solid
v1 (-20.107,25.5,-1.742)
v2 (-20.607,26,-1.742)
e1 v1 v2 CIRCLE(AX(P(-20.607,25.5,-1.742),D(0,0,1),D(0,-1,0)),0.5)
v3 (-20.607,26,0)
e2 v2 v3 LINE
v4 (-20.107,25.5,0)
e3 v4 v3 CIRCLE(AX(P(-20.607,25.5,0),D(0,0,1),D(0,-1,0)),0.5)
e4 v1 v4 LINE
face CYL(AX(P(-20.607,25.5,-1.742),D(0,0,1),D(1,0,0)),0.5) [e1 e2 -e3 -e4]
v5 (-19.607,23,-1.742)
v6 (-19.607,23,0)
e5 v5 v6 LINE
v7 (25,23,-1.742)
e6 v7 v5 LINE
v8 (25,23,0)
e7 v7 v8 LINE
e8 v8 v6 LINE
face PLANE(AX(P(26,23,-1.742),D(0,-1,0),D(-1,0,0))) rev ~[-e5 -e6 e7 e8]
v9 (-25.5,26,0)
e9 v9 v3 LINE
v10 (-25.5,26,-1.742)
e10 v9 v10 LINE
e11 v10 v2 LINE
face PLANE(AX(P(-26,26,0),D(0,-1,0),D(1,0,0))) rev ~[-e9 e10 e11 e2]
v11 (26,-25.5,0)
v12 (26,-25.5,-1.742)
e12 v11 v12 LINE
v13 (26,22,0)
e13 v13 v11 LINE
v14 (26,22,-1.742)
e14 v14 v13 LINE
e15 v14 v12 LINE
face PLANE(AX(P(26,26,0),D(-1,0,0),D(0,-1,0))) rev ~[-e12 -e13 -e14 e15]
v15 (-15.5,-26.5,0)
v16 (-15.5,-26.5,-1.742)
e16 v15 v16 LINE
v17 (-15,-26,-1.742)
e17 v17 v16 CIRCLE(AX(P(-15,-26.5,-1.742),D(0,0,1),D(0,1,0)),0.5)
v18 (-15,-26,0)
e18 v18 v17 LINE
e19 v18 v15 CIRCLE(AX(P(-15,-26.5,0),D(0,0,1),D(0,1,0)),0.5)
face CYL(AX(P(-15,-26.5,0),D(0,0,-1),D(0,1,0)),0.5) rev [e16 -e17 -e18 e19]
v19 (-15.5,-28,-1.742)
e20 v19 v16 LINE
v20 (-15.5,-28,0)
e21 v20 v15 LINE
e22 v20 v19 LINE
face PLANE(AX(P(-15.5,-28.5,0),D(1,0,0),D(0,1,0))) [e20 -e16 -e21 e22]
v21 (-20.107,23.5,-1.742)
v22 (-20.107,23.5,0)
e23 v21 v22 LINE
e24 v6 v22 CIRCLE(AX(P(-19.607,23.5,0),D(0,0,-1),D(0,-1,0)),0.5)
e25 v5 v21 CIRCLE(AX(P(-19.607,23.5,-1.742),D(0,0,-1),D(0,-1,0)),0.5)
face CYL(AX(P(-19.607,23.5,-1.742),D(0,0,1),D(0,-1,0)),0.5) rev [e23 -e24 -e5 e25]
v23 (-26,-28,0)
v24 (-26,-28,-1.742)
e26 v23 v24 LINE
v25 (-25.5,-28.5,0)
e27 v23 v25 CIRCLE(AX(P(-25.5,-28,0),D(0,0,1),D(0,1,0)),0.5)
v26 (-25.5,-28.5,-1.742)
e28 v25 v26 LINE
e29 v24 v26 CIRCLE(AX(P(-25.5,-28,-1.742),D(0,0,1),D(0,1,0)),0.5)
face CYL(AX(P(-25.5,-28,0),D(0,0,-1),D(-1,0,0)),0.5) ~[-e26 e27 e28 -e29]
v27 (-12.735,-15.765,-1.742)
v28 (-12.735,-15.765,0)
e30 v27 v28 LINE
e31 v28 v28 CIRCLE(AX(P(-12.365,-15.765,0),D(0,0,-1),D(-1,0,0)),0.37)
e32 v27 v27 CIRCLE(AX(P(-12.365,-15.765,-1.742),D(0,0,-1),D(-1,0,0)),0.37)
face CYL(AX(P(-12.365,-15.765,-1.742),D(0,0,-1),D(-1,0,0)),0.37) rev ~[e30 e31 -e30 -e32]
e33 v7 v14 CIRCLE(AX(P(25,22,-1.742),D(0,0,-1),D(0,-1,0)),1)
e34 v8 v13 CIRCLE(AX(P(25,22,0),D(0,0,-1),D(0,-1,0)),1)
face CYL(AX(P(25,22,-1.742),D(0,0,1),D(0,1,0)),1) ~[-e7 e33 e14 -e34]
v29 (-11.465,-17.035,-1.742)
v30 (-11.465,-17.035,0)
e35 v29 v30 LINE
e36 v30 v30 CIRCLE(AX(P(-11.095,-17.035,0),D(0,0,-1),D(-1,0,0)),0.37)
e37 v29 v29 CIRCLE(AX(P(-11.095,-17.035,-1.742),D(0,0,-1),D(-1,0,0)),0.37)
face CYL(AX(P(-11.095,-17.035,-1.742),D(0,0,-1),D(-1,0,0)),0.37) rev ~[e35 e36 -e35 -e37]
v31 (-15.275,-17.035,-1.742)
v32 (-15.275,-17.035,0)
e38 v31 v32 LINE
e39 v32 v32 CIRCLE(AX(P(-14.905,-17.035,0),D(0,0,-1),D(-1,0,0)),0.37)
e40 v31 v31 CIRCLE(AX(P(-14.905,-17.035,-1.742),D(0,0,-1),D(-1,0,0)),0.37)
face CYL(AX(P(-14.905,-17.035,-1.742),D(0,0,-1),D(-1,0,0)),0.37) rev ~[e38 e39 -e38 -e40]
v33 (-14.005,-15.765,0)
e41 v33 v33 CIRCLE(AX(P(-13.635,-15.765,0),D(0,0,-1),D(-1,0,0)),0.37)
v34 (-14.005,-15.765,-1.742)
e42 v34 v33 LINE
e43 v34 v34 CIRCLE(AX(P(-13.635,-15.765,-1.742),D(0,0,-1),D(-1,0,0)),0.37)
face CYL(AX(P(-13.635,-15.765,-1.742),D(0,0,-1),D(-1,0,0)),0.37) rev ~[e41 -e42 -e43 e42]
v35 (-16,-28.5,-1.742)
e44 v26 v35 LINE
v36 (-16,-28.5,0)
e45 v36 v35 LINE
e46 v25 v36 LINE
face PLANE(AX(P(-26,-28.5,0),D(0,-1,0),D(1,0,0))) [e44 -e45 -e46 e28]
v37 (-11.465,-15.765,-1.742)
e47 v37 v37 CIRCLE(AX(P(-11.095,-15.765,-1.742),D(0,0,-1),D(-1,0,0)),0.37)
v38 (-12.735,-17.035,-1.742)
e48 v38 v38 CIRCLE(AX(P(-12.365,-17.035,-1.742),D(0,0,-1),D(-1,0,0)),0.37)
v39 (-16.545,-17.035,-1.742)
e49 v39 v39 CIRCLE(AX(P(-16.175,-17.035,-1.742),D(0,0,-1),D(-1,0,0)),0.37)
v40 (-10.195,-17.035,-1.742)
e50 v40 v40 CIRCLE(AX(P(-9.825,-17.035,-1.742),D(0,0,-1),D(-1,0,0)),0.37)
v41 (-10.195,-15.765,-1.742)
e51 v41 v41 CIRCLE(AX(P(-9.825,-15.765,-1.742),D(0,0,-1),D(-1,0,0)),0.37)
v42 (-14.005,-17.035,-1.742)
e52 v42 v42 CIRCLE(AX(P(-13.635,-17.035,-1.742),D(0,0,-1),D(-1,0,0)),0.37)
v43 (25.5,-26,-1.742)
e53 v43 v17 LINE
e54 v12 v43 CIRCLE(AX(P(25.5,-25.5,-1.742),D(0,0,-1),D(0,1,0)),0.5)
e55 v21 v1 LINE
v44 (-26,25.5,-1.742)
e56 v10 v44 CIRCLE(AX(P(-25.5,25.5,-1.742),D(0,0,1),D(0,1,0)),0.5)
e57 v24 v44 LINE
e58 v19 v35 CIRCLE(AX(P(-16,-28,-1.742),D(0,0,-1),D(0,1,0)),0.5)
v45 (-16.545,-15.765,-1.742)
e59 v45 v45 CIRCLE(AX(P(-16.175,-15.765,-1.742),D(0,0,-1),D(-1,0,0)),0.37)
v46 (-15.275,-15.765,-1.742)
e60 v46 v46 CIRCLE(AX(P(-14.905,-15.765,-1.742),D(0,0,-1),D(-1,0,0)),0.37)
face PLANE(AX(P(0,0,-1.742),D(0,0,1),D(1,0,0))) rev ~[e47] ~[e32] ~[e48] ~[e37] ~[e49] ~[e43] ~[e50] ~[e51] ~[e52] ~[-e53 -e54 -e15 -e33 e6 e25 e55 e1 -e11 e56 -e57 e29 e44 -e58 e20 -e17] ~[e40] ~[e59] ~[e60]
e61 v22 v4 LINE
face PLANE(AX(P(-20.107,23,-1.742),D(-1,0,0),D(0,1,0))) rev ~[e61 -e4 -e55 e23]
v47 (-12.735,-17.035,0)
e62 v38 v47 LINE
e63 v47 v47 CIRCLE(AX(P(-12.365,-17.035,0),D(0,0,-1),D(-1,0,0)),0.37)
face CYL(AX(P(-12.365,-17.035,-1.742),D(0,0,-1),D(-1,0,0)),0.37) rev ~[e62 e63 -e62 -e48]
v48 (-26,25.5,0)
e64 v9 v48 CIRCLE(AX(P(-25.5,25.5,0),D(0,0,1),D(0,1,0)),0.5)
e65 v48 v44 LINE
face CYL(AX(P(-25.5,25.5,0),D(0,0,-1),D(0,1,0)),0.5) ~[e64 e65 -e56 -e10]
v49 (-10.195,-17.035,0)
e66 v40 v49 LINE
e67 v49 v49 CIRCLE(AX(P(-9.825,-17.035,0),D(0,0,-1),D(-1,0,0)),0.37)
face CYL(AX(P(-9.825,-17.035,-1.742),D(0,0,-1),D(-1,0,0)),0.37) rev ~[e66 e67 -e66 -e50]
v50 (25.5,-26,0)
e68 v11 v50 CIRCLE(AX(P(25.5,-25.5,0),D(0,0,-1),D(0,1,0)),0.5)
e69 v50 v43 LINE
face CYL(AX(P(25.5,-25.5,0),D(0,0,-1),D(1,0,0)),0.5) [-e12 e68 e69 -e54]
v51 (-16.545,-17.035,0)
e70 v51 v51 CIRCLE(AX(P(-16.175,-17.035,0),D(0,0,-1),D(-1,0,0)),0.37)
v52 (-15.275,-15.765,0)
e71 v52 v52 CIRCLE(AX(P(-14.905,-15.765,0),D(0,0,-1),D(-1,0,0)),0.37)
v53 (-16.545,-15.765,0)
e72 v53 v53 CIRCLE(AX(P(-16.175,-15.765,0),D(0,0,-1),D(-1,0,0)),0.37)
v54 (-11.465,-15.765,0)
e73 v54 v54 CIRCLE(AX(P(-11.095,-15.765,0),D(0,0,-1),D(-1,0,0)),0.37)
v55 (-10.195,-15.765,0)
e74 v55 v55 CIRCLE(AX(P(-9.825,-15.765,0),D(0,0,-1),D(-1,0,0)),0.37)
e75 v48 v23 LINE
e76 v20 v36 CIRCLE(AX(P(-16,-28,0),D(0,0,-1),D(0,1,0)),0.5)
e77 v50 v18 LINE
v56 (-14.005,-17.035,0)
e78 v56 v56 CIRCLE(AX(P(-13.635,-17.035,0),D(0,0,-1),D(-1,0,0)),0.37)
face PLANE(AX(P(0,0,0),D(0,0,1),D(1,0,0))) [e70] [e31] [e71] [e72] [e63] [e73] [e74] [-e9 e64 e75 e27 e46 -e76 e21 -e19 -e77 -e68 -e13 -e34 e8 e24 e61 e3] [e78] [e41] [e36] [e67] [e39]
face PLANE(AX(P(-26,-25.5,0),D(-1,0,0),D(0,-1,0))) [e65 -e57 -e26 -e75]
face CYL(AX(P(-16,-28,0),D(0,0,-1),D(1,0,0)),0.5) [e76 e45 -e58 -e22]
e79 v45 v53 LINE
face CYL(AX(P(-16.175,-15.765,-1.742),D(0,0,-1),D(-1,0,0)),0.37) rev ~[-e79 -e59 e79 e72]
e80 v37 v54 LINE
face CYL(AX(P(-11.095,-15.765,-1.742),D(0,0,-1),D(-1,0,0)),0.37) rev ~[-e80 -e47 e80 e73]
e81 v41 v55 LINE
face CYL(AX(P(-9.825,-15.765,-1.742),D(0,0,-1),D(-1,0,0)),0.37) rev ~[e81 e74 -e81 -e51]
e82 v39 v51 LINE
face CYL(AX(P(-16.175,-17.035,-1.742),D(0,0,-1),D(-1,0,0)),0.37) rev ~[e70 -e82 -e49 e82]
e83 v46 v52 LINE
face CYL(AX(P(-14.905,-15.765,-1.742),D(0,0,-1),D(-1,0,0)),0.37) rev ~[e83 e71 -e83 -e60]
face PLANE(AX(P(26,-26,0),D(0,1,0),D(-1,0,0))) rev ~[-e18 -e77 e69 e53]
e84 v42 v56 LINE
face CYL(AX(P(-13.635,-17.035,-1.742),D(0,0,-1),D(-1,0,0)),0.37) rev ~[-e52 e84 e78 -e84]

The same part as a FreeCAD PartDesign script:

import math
import FreeCAD as App
import Part
import Sketcher
from FreeCAD import Vector
Q = App.Units.Quantity


def edges_at(feature, points):
    """Names of the edges that pass closest to the given points."""
    edges = feature.Shape.Edges
    near = lambda p: min(range(len(edges)), key=lambda i: edges[i].distToShape(Part.Vertex(*p))[0])
    return sorted({f"Edge{near(p) + 1}" for p in points})

doc = App.newDocument("Part")
body = doc.addObject("PartDesign::Body", "Body")

# Sketch on XY plane
sketch1 = doc.addObject("Sketcher::SketchObject", "Sketch")
body.addObject(sketch1)
sketch1.AttachmentSupport = (doc.XY_Plane, [""])
sketch1.MapMode = "FlatFace"
sketch1.addGeometry([
    Part.LineSegment(Vector(26, 26, 0), Vector(-26, 26, 0)),
    Part.LineSegment(Vector(-26, 26, 0), Vector(-26, -26, 0)),
    Part.LineSegment(Vector(-26, -26, 0), Vector(26, -26, 0)),
    Part.LineSegment(Vector(26, -26, 0), Vector(26, 26, 0)),
], False)
sketch1.addConstraint([
    Sketcher.Constraint("Coincident", 0, 2, 1, 1),
    Sketcher.Constraint("Coincident", 1, 2, 2, 1),
    Sketcher.Constraint("Coincident", 2, 2, 3, 1),
    Sketcher.Constraint("Coincident", 3, 2, 0, 1),
    Sketcher.Constraint("Horizontal", 0),
    Sketcher.Constraint("Vertical", 1),
    Sketcher.Constraint("Horizontal", 2),
    Sketcher.Constraint("Vertical", 3),
    Sketcher.Constraint("Symmetric", 0, 2, 2, 2, -1, 1),
    Sketcher.Constraint("Equal", 2, 1),
    Sketcher.Constraint("DistanceX", 0, 2, 0, 1, Q("52 mm")),
])
pad1 = doc.addObject("PartDesign::Pad", "Pad")
body.addObject(pad1)
pad1.Profile = sketch1
pad1.Length = 1.742
pad1.Reversed = True
doc.recompute()

fillet = doc.addObject("PartDesign::Fillet", "Fillet")
body.addObject(fillet)
fillet.Base = (pad1, edges_at(pad1, [
    (26, 26, -0.871),
    (-26, 26, -0.871),
    (-26, -26, -0.871),
    (26, -26, -0.871),
]))
fillet.Radius = 0.5

# Sketch on XY plane
sketch2 = doc.addObject("Sketcher::SketchObject", "Sketch001")
body.addObject(sketch2)
sketch2.AttachmentSupport = (doc.XY_Plane, [""])
sketch2.MapMode = "FlatFace"
sketch2.addGeometry([
    Part.ArcOfCircle(Part.Circle(Vector(-25.5, -25.5, 0), Vector(0, 0, 1), 0.5), math.radians(180), math.radians(270)),  # 0
    Part.LineSegment(Vector(-26, -25.5, 0), Vector(-26, -28.5, 0)),  # 1
    Part.LineSegment(Vector(-26, -28.5, 0), Vector(-15.5, -28.5, 0)),  # 2
    Part.LineSegment(Vector(-15.5, -28.5, 0), Vector(-15.5, -26, 0)),  # 3
    Part.LineSegment(Vector(-15.5, -26, 0), Vector(-25.5, -26, 0)),  # 4
], False)
sketch2.addConstraint([
    Sketcher.Constraint("Tangent", 0, 1, 1, 1),
    Sketcher.Constraint("Coincident", 1, 2, 2, 1),
    Sketcher.Constraint("Coincident", 2, 2, 3, 1),
    Sketcher.Constraint("Coincident", 3, 2, 4, 1),
    Sketcher.Constraint("Tangent", 4, 2, 0, 2),
    Sketcher.Constraint("Vertical", 1),
    Sketcher.Constraint("Horizontal", 2),
    Sketcher.Constraint("Vertical", 3),
    Sketcher.Constraint("Horizontal", 4),
    Sketcher.Constraint("DistanceX", 2, 1, 2, 2, Q("10.5 mm")),
    Sketcher.Constraint("DistanceY", 3, 1, 3, 2, Q("2.5 mm")),
    Sketcher.Constraint("Radius", 0, Q("0.5 mm")),
    Sketcher.Constraint("DistanceX", 0, 1, -1, 1, Q("26 mm")),
    Sketcher.Constraint("DistanceY", 3, 2, -1, 1, Q("26 mm")),
])
pad2 = doc.addObject("PartDesign::Pad", "Pad001")
body.addObject(pad2)
pad2.Profile = sketch2
pad2.Length = 1.742
pad2.Reversed = True

# Sketch on XY plane
sketch3 = doc.addObject("Sketcher::SketchObject", "Sketch002")
body.addObject(sketch3)
sketch3.AttachmentSupport = (doc.XY_Plane, [""])
sketch3.MapMode = "FlatFace"
sketch3.AttachmentOffset = App.Placement(Vector(0, 0, -1.742), App.Rotation())
sketch3.addGeometry([
    Part.LineSegment(Vector(26, 26, 0), Vector(26, 23, 0)),
    Part.LineSegment(Vector(26, 23, 0), Vector(-20.1, 23, 0)),
    Part.LineSegment(Vector(-20.1, 23, 0), Vector(-20.1, 26, 0)),
    Part.LineSegment(Vector(-20.1, 26, 0), Vector(26, 26, 0)),
], False)
sketch3.addConstraint([
    Sketcher.Constraint("Coincident", 0, 2, 1, 1),
    Sketcher.Constraint("Coincident", 1, 2, 2, 1),
    Sketcher.Constraint("Coincident", 2, 2, 3, 1),
    Sketcher.Constraint("Coincident", 3, 2, 0, 1),
    Sketcher.Constraint("Vertical", 0),
    Sketcher.Constraint("Horizontal", 1),
    Sketcher.Constraint("Vertical", 2),
    Sketcher.Constraint("Horizontal", 3),
    Sketcher.Constraint("DistanceY", 0, 2, 0, 1, Q("3 mm")),
    Sketcher.Constraint("DistanceX", 1, 2, 1, 1, Q("46.107 mm")),
    Sketcher.Constraint("DistanceX", -1, 1, 0, 2, Q("26 mm")),
    Sketcher.Constraint("DistanceY", -1, 1, 0, 2, Q("23 mm")),
])
pocket1 = doc.addObject("PartDesign::Pocket", "Pocket")
body.addObject(pocket1)
pocket1.Profile = sketch3
pocket1.Length = 1.742
pocket1.Reversed = True
doc.recompute()

fillet2 = doc.addObject("PartDesign::Fillet", "Fillet001")
body.addObject(fillet2)
fillet2.Base = (pocket1, edges_at(pocket1, [(26, 23, -0.871)]))
fillet2.Radius = 1
doc.recompute()

fillet3 = doc.addObject("PartDesign::Fillet", "Fillet002")
body.addObject(fillet3)
fillet3.Base = (fillet2, edges_at(fillet2, [
    (-15.5, -28.5, -0.871),
    (-15.5, -26, -0.871),
    (-26, -28.5, -0.871),
    (-20.107, 23, -0.871),
    (-20.107, 26, -0.871),
]))
fillet3.Radius = 0.5

# Sketch on XY plane
sketch4 = doc.addObject("Sketcher::SketchObject", "Sketch003")
body.addObject(sketch4)
sketch4.AttachmentSupport = (doc.XY_Plane, [""])
sketch4.MapMode = "FlatFace"
sketch4.AttachmentOffset = App.Placement(Vector(0, 0, -1.742), App.Rotation())
sketch4.addGeometry([
    Part.Circle(Vector(-16.18, -15.77, 0), Vector(0, 0, 1), 0.37),  # 0
    Part.Circle(Vector(-16.18, -17.04, 0), Vector(0, 0, 1), 0.37),  # 1
    Part.Circle(Vector(-14.9, -17.04, 0), Vector(0, 0, 1), 0.37),  # 2
    Part.Circle(Vector(-14.9, -15.77, 0), Vector(0, 0, 1), 0.37),  # 3
    Part.Circle(Vector(-13.63, -15.77, 0), Vector(0, 0, 1), 0.37),  # 4
    Part.Circle(Vector(-13.63, -17.04, 0), Vector(0, 0, 1), 0.37),  # 5
    Part.Circle(Vector(-12.37, -15.77, 0), Vector(0, 0, 1), 0.37),  # 6
    Part.Circle(Vector(-12.37, -17.04, 0), Vector(0, 0, 1), 0.37),  # 7
    Part.Circle(Vector(-11.1, -15.77, 0), Vector(0, 0, 1), 0.37),  # 8
    Part.Circle(Vector(-11.1, -17.04, 0), Vector(0, 0, 1), 0.37),  # 9
    Part.Circle(Vector(-9.82, -17.04, 0), Vector(0, 0, 1), 0.37),  # 10
    Part.Circle(Vector(-9.82, -15.77, 0), Vector(0, 0, 1), 0.37),  # 11
], False)
sketch4.addConstraint([
    Sketcher.Constraint("Equal", 0, 1),
    Sketcher.Constraint("Equal", 1, 2),
    Sketcher.Constraint("Equal", 2, 3),
    Sketcher.Constraint("Equal", 3, 4),
    Sketcher.Constraint("Equal", 4, 5),
    Sketcher.Constraint("Equal", 5, 6),
    Sketcher.Constraint("Equal", 6, 7),
    Sketcher.Constraint("Equal", 7, 8),
    Sketcher.Constraint("Equal", 8, 9),
    Sketcher.Constraint("Equal", 9, 10),
    Sketcher.Constraint("Equal", 10, 11),
    Sketcher.Constraint("Horizontal", 1, 3, 2, 3),
    Sketcher.Constraint("Horizontal", 0, 3, 3, 3),
    Sketcher.Constraint("Horizontal", 3, 3, 4, 3),
    Sketcher.Constraint("Horizontal", 2, 3, 5, 3),
    Sketcher.Constraint("Horizontal", 4, 3, 6, 3),
    Sketcher.Constraint("Horizontal", 5, 3, 7, 3),
    Sketcher.Constraint("Horizontal", 6, 3, 8, 3),
    Sketcher.Constraint("Horizontal", 7, 3, 9, 3),
    Sketcher.Constraint("Horizontal", 9, 3, 10, 3),
    Sketcher.Constraint("Horizontal", 8, 3, 11, 3),
    Sketcher.Constraint("Vertical", 0, 3, 1, 3),
    Sketcher.Constraint("Vertical", 2, 3, 3, 3),
    Sketcher.Constraint("Vertical", 4, 3, 5, 3),
    Sketcher.Constraint("Vertical", 6, 3, 7, 3),
    Sketcher.Constraint("Vertical", 8, 3, 9, 3),
    Sketcher.Constraint("Vertical", 10, 3, 11, 3),
    Sketcher.Constraint("Diameter", 0, Q("0.74 mm")),
    Sketcher.Constraint("DistanceY", 1, 3, 0, 3, Q("1.27 mm")),
    Sketcher.Constraint("DistanceX", 1, 3, 2, 3, Q("1.27 mm")),
    Sketcher.Constraint("DistanceX", 3, 3, 4, 3, Q("1.27 mm")),
    Sketcher.Constraint("DistanceX", 4, 3, 6, 3, Q("1.27 mm")),
    Sketcher.Constraint("DistanceX", 6, 3, 8, 3, Q("1.27 mm")),
    Sketcher.Constraint("DistanceX", 9, 3, 10, 3, Q("1.27 mm")),
    Sketcher.Constraint("DistanceX", 10, 3, -1, 1, Q("9.825 mm")),
    Sketcher.Constraint("DistanceY", 0, 3, -1, 1, Q("15.765 mm")),
])
pocket2 = doc.addObject("PartDesign::Pocket", "Pocket001")
body.addObject(pocket2)
pocket2.Profile = sketch4
pocket2.Length = 1.742
pocket2.Reversed = True

doc.recompute()
